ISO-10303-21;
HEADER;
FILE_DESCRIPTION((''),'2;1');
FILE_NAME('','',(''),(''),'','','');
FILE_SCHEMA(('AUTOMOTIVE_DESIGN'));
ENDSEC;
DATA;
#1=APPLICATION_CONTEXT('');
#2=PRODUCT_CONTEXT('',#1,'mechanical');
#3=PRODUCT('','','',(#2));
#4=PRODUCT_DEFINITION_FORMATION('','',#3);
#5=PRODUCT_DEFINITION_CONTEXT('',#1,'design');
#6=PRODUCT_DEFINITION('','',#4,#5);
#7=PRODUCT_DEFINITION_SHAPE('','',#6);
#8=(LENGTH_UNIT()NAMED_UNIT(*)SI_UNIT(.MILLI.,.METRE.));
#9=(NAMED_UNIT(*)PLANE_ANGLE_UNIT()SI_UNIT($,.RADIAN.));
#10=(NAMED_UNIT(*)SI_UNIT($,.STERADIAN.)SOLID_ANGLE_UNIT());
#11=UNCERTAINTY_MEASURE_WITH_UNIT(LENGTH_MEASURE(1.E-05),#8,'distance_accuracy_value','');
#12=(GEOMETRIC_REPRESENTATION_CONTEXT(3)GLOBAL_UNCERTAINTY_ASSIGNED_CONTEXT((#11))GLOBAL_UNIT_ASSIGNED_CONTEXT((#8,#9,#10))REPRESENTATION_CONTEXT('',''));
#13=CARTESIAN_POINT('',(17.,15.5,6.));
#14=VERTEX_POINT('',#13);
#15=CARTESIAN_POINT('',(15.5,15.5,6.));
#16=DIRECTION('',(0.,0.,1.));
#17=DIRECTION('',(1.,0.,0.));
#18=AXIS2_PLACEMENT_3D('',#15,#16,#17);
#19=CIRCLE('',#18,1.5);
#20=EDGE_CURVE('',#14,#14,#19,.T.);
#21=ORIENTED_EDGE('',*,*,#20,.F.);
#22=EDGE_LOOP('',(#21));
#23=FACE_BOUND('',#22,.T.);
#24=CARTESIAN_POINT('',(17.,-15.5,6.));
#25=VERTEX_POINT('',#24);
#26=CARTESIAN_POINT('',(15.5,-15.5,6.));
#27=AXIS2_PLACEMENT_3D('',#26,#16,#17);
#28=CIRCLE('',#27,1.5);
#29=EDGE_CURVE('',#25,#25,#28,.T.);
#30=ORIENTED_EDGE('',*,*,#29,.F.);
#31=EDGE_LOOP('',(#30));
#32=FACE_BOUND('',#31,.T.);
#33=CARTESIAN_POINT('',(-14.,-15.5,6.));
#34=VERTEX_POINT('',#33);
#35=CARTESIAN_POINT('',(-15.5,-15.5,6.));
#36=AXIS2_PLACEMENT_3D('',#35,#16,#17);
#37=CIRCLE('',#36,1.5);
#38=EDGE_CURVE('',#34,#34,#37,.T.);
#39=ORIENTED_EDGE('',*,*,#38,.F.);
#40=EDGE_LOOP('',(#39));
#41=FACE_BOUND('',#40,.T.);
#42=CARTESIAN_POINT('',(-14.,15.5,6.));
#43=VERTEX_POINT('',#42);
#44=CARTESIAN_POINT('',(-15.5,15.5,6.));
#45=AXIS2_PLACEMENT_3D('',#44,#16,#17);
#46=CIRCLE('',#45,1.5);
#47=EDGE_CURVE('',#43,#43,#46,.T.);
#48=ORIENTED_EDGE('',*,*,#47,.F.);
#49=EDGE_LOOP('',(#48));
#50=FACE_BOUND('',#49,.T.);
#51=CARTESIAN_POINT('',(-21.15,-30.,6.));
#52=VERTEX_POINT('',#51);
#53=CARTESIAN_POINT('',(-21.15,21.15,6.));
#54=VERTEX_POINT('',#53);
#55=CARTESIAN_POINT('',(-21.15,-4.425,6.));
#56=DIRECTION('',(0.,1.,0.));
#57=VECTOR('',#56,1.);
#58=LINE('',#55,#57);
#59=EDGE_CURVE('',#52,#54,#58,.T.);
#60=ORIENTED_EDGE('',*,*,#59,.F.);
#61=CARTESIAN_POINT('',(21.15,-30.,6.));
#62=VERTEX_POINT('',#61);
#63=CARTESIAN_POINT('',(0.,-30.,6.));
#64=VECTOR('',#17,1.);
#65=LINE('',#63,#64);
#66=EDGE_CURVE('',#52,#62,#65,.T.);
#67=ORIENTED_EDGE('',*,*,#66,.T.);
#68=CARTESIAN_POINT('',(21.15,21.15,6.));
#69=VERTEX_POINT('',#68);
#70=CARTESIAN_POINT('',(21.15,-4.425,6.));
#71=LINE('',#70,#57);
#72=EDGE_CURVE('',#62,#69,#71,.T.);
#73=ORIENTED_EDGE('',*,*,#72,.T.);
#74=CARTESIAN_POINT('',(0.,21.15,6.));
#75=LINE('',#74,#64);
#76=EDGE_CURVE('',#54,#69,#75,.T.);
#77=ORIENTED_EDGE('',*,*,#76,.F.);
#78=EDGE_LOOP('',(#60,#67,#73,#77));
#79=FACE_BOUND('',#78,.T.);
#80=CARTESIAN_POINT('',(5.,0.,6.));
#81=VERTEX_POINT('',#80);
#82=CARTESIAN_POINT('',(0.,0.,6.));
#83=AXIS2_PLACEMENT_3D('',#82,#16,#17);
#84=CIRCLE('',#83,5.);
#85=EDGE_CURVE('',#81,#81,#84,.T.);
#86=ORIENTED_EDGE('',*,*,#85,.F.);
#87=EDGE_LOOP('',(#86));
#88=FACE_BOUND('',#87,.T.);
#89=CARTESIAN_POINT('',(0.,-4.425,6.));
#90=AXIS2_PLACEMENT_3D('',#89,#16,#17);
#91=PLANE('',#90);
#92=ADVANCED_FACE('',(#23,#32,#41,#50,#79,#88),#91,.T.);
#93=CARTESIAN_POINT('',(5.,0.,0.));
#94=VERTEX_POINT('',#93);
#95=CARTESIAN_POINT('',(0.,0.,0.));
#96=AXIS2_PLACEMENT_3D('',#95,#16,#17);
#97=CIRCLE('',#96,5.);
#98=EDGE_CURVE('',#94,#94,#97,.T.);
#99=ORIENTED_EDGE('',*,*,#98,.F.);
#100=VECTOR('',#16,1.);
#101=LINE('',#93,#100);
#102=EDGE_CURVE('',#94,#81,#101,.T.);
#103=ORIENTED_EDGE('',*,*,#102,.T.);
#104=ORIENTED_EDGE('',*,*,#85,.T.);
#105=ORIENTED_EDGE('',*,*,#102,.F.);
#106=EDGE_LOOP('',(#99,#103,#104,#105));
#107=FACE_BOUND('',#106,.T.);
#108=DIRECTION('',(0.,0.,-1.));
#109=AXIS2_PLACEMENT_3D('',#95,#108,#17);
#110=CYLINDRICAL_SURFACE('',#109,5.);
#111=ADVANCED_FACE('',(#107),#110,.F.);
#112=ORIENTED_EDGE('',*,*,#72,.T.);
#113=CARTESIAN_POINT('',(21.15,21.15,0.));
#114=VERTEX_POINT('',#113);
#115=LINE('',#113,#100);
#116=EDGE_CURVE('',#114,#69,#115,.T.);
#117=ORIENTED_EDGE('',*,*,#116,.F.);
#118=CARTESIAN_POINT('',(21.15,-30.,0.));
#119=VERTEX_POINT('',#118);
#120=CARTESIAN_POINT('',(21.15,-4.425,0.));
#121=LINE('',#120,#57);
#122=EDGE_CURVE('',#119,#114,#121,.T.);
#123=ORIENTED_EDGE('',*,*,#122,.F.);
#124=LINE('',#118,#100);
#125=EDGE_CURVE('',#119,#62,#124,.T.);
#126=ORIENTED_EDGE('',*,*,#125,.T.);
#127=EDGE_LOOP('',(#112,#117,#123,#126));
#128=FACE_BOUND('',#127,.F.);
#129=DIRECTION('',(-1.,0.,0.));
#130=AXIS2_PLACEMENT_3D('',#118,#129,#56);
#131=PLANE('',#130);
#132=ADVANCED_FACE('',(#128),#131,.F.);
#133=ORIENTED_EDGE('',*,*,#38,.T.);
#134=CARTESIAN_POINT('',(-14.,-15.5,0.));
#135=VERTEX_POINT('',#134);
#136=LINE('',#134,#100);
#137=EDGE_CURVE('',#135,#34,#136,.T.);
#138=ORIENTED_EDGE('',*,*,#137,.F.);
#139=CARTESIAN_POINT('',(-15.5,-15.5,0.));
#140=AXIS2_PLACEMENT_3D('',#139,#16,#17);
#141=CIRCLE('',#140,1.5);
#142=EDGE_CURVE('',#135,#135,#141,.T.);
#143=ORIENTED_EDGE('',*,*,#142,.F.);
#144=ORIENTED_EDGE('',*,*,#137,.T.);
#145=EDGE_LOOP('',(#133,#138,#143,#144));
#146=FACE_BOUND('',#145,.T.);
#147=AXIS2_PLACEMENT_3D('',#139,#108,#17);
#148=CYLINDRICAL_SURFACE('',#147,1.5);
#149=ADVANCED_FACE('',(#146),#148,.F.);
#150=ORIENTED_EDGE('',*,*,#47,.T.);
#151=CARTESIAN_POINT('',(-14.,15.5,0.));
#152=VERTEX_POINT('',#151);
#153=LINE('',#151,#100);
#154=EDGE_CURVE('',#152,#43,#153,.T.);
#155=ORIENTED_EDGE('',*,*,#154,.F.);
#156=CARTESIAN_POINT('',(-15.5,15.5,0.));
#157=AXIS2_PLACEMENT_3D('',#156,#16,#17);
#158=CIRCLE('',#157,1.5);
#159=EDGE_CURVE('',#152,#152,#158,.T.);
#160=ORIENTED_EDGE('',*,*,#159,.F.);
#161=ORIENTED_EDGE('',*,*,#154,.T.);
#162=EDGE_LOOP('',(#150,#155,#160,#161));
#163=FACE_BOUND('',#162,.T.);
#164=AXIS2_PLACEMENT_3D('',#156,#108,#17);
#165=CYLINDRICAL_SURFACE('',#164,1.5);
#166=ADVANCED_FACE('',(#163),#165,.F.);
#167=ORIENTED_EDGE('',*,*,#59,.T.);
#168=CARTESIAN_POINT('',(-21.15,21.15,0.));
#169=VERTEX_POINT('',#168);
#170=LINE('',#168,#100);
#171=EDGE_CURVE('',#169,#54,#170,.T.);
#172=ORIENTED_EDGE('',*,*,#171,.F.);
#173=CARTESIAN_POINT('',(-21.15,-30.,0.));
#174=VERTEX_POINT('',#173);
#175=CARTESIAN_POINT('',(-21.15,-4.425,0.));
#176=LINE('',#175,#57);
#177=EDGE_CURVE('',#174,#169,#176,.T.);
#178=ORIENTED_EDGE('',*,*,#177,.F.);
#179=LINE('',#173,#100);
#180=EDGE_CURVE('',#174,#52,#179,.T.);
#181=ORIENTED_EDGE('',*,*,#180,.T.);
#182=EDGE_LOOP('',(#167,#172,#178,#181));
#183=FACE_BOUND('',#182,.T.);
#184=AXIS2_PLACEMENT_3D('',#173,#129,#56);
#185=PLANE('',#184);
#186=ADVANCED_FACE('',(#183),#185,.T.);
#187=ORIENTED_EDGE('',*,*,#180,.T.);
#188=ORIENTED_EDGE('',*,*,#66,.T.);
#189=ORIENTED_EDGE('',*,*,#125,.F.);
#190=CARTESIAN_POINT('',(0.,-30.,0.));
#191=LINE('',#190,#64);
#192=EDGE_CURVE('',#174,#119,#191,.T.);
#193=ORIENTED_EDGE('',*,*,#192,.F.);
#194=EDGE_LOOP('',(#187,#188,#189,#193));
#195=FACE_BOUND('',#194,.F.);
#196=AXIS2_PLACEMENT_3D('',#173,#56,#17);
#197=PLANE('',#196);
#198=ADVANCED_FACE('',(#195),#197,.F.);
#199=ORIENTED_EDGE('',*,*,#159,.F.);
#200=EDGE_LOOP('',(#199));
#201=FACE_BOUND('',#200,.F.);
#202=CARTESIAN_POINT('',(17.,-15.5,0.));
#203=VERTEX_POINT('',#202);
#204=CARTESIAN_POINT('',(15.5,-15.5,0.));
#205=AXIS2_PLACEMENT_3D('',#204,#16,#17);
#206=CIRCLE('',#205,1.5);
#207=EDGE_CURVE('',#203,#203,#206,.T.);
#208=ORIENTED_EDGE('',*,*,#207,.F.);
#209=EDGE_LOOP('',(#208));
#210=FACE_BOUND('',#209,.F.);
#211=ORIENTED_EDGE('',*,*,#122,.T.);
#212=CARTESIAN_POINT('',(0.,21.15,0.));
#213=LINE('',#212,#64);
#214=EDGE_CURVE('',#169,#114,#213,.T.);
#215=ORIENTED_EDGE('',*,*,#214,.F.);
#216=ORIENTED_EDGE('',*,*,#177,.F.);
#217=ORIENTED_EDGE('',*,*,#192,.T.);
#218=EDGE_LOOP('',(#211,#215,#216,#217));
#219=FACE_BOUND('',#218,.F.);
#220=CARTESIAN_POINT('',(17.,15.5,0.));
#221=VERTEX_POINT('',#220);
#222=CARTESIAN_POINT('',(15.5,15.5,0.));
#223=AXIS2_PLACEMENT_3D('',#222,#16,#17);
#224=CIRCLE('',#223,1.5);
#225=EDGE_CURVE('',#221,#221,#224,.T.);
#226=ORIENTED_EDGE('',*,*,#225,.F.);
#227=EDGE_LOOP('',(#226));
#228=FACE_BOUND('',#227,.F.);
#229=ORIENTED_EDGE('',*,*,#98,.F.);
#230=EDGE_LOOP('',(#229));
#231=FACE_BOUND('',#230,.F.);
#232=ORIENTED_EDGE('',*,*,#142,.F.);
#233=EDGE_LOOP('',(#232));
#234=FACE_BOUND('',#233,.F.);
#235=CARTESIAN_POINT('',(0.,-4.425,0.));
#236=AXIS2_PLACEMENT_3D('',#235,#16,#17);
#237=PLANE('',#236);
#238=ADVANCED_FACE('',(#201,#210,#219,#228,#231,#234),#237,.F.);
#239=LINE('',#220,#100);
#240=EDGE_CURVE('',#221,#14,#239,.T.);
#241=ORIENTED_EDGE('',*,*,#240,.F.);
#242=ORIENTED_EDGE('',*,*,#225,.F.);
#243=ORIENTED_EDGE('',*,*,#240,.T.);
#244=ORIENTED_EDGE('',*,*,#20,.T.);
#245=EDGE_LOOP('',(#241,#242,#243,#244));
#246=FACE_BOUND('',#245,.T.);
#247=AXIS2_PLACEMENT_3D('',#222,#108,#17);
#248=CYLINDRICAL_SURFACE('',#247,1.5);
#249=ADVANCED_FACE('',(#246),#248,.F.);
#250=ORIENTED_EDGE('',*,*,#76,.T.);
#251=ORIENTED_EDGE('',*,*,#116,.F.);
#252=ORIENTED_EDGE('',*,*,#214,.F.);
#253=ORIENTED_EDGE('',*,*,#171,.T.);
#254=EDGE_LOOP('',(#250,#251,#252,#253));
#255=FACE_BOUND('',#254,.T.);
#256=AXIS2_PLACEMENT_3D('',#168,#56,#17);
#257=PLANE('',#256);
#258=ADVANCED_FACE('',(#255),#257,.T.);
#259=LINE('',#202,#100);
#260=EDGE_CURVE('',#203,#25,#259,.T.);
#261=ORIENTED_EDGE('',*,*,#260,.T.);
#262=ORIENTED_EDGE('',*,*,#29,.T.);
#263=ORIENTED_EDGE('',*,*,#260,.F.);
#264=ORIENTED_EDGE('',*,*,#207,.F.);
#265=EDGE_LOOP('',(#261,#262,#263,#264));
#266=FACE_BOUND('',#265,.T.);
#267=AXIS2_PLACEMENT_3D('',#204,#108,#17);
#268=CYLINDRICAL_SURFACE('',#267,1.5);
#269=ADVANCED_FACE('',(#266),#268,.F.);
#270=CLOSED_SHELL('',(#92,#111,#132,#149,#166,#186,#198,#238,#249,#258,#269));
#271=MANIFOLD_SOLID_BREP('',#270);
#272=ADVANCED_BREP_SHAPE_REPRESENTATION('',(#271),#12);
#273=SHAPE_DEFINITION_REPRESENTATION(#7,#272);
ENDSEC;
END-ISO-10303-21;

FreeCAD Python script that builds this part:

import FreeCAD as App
import Part
import Sketcher

V = App.Vector


def add_polygon(sketch, points):
    """Adds a closed chain of lines whose ends are joined by coincident constraints."""
    first, n = sketch.GeometryCount, len(points)
    for a, b in zip(points, points[1:] + points[:1]):
        sketch.addGeometry(Part.LineSegment(App.Vector(*a, 0), App.Vector(*b, 0)), False)
    for i in range(n):
        sketch.addConstraint(Sketcher.Constraint("Coincident", first + i, 2, first + (i + 1) % n, 1))

doc = App.newDocument("Part")
params = doc.addObject("Spreadsheet::Sheet", "Params")
for row, (alias, value) in enumerate([
    ("sketch1_diameter", "3 mm"),
    ("sketch1_diameter2", "10 mm"),
    ("sketch1_width", "42.3 mm"),
    ("sketch1_height", "51.15 mm"),
    ("pad1_length", "6 mm"),
], start=1):
    params.set(f"A{row}", alias)
    params.set(f"B{row}", "=" + value)
    params.setAlias(f"B{row}", alias)

body = doc.addObject("PartDesign::Body", "Body")

# Sketch on XY plane
sketch1 = body.newObject("Sketcher::SketchObject", "Sketch")
sketch1.AttachmentSupport = (doc.getObject("XY_Plane"), [""])
sketch1.MapMode = "FlatFace"
add_polygon(sketch1, [(-21.1, 21.1), (-21.1, -30), (21.1, -30), (21.1, 21.1)])  # lines 0-3
sketch1.addGeometry(Part.Circle(V(-15.5, -15.5, 0), V(0, 0, 1), 1.5), False)  # 4
sketch1.addGeometry(Part.Circle(V(15.5, -15.5, 0), V(0, 0, 1), 1.5), False)  # 5
sketch1.addGeometry(Part.Circle(V(-15.5, 15.5, 0), V(0, 0, 1), 1.5), False)  # 6
sketch1.addGeometry(Part.Circle(V(0, 0, 0), V(0, 0, 1), 5), False)  # 7
sketch1.addGeometry(Part.Circle(V(15.5, 15.5, 0), V(0, 0, 1), 1.5), False)  # 8
sketch1.addConstraint([
    Sketcher.Constraint("Vertical", 0),
    Sketcher.Constraint("Horizontal", 1),
    Sketcher.Constraint("Vertical", 2),
    Sketcher.Constraint("Horizontal", 3),
    Sketcher.Constraint("Coincident", 7, 3, -1, 1),
    Sketcher.Constraint("Equal", 4, 5),
    Sketcher.Constraint("Equal", 5, 6),
    Sketcher.Constraint("Equal", 6, 8),
    Sketcher.Constraint("Symmetric", 5, 3, 6, 3, -1, 1),
    Sketcher.Constraint("Symmetric", 4, 3, 8, 3, -1, 1),
    Sketcher.Constraint("Symmetric", 4, 3, 5, 3, -2),
    Sketcher.Constraint("Diameter", 4, 3.0),
    Sketcher.Constraint("Diameter", 7, 10.0),
    Sketcher.Constraint("DistanceX", 1, 1, 1, 2, 42.3),
    Sketcher.Constraint("DistanceY", 0, 2, -1, 1, 30.0),
    Sketcher.Constraint("DistanceX", 4, 3, 5, 3, 31.0),
    Sketcher.Constraint("DistanceY", 4, 3, 6, 3, 31.0),
    Sketcher.Constraint("DistanceY", 0, 2, 0, 1, 51.15),
    Sketcher.Constraint("DistanceX", 0, 2, -1, 1, 21.15),
])
sketch1.setExpression("Constraints[15]", "Params.sketch1_diameter")
sketch1.setExpression("Constraints[16]", "Params.sketch1_diameter2")
sketch1.setExpression("Constraints[17]", "Params.sketch1_width")
sketch1.setExpression("Constraints[21]", "Params.sketch1_height")
pad1 = body.newObject("PartDesign::Pad", "Pad")
pad1.Profile = sketch1
pad1.setExpression("Length", "Params.pad1_length")

doc.recompute()
